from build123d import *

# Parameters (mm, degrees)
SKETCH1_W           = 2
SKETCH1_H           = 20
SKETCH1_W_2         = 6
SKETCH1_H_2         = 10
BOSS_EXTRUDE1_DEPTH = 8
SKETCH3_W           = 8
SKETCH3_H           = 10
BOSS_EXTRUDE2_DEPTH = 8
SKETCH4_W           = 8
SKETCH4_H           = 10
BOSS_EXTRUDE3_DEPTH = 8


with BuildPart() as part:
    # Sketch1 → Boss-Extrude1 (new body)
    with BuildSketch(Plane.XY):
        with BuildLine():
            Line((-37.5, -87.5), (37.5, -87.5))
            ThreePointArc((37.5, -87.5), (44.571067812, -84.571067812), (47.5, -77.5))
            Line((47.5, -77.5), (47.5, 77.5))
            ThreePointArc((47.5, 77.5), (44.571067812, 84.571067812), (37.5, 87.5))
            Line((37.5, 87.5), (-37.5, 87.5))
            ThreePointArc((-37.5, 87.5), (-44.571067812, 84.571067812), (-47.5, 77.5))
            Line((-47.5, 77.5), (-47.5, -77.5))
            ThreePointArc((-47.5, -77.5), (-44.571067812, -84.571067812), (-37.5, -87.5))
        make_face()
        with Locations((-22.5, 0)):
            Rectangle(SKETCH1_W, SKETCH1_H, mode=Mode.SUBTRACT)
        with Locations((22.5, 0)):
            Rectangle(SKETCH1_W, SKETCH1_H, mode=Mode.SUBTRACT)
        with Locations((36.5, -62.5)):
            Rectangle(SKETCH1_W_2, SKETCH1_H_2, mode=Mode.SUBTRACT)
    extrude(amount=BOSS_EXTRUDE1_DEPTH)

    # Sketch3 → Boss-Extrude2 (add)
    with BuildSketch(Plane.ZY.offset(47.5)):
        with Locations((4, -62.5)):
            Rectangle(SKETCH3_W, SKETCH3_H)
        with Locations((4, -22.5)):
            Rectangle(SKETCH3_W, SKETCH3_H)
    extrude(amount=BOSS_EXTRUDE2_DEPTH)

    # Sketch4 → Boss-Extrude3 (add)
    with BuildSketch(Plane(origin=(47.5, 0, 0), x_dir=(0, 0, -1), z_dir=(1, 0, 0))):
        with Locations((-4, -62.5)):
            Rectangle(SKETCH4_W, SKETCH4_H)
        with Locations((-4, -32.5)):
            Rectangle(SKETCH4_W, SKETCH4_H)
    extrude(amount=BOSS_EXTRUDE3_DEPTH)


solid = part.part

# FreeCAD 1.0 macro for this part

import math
import FreeCAD as App
import Part
import Sketcher

V = App.Vector


def add_polygon(sketch, points):
    """Adds a closed chain of lines whose ends are joined by coincident constraints."""
    first, n = sketch.GeometryCount, len(points)
    for a, b in zip(points, points[1:] + points[:1]):
        sketch.addGeometry(Part.LineSegment(App.Vector(*a, 0), App.Vector(*b, 0)), False)
    for i in range(n):
        sketch.addConstraint(Sketcher.Constraint("Coincident", first + i, 2, first + (i + 1) % n, 1))

doc = App.newDocument("Part")
params = doc.addObject("Spreadsheet::Sheet", "Params")
for row, (alias, value) in enumerate([
    ("sketch1_radius", "10 mm"),
    ("sketch1_width", "75 mm"),
    ("sketch1_width2", "6 mm"),
    ("sketch1_width3", "2 mm"),
    ("sketch1_height", "155 mm"),
    ("pad1_length", "8 mm"),
    ("sketch2_width", "10 mm"),
    ("sketch2_height", "8 mm"),
    ("pad2_length", "8 mm"),
    ("sketch3_width", "10 mm"),
    ("sketch3_height", "8 mm"),
    ("pad3_length", "8 mm"),
], start=1):
    params.set(f"A{row}", alias)
    params.set(f"B{row}", "=" + value)
    params.setAlias(f"B{row}", alias)

body = doc.addObject("PartDesign::Body", "Body")

# Sketch on XY plane
sketch1 = body.newObject("Sketcher::SketchObject", "Sketch")
sketch1.AttachmentSupport = (doc.getObject("XY_Plane"), [""])
sketch1.MapMode = "FlatFace"
sketch1.addGeometry(Part.LineSegment(V(-37.5, -87.5, 0), V(37.5, -87.5, 0)), False)  # 0
sketch1.addGeometry(Part.ArcOfCircle(Part.Circle(V(37.5, -77.5, 0), V(0, 0, 1), 10), math.radians(-90), math.radians(0)), False)  # 1
sketch1.addGeometry(Part.LineSegment(V(47.5, -77.5, 0), V(47.5, 77.5, 0)), False)  # 2
sketch1.addGeometry(Part.ArcOfCircle(Part.Circle(V(37.5, 77.5, 0), V(0, 0, 1), 10), math.radians(0), math.radians(90)), False)  # 3
sketch1.addGeometry(Part.LineSegment(V(37.5, 87.5, 0), V(-37.5, 87.5, 0)), False)  # 4
sketch1.addGeometry(Part.ArcOfCircle(Part.Circle(V(-37.5, 77.5, 0), V(0, 0, 1), 10), math.radians(90), math.radians(180)), False)  # 5
sketch1.addGeometry(Part.LineSegment(V(-47.5, 77.5, 0), V(-47.5, -77.5, 0)), False)  # 6
sketch1.addGeometry(Part.ArcOfCircle(Part.Circle(V(-37.5, -77.5, 0), V(0, 0, 1), 10), math.radians(180), math.radians(270)), False)  # 7
add_polygon(sketch1, [(39.5, -67.5), (33.5, -67.5), (33.5, -57.5), (39.5, -57.5)])  # lines 8-11
add_polygon(sketch1, [(-21.5, -10), (-23.5, -10), (-23.5, 10), (-21.5, 10)])  # lines 12-15
add_polygon(sketch1, [(23.5, -10), (21.5, -10), (21.5, 10), (23.5, 10)])  # lines 16-19
sketch1.addConstraint([
    Sketcher.Constraint("Tangent", 0, 2, 1, 1),
    Sketcher.Constraint("Tangent", 1, 2, 2, 1),
    Sketcher.Constraint("Tangent", 2, 2, 3, 1),
    Sketcher.Constraint("Tangent", 3, 2, 4, 1),
    Sketcher.Constraint("Tangent", 4, 2, 5, 1),
    Sketcher.Constraint("Tangent", 5, 2, 6, 1),
    Sketcher.Constraint("Tangent", 6, 2, 7, 1),
    Sketcher.Constraint("Tangent", 7, 2, 0, 1),
    Sketcher.Constraint("Horizontal", 0),
    Sketcher.Constraint("Vertical", 2),
    Sketcher.Constraint("Horizontal", 4),
    Sketcher.Constraint("Vertical", 6),
    Sketcher.Constraint("Horizontal", 8),
    Sketcher.Constraint("Vertical", 9),
    Sketcher.Constraint("Horizontal", 10),
    Sketcher.Constraint("Vertical", 11),
    Sketcher.Constraint("Horizontal", 12),
    Sketcher.Constraint("Vertical", 13),
    Sketcher.Constraint("Horizontal", 14),
    Sketcher.Constraint("Vertical", 15),
    Sketcher.Constraint("Horizontal", 16),
    Sketcher.Constraint("Vertical", 17),
    Sketcher.Constraint("Horizontal", 18),
    Sketcher.Constraint("Vertical", 19),
    Sketcher.Constraint("Equal", 1, 3),
    Sketcher.Constraint("Equal", 3, 5),
    Sketcher.Constraint("Equal", 5, 7),
    Sketcher.Constraint("Symmetric", 1, 3, 5, 3, -1, 1),
    Sketcher.Constraint("Symmetric", 14, 2, 16, 2, -1, 1),
    Sketcher.Constraint("Symmetric", 12, 2, 18, 2, -1, 1),
    Sketcher.Constraint("Horizontal", 15, 2, 16, 2),
    Sketcher.Constraint("Radius", 1, 10.0),
    Sketcher.Constraint("DistanceX", 0, 1, 0, 2, 75.0),
    Sketcher.Constraint("DistanceX", 8, 2, 8, 1, 6.0),
    Sketcher.Constraint("DistanceX", 12, 2, 12, 1, 2.0),
    Sketcher.Constraint("DistanceY", 2, 1, 2, 2, 155.0),
    Sketcher.Constraint("DistanceY", 9, 1, 9, 2, 10.0),
    Sketcher.Constraint("DistanceY", 13, 1, 13, 2, 20.0),
    Sketcher.Constraint("DistanceX", 8, 2, 1, 3, 4.0),
    Sketcher.Constraint("DistanceY", 1, 3, 8, 2, 10.0),
    Sketcher.Constraint("DistanceX", 7, 3, 12, 2, 14.0),
])
sketch1.setExpression("Constraints[43]", "Params.sketch1_radius")
sketch1.setExpression("Constraints[44]", "Params.sketch1_width")
sketch1.setExpression("Constraints[45]", "Params.sketch1_width2")
sketch1.setExpression("Constraints[46]", "Params.sketch1_width3")
sketch1.setExpression("Constraints[47]", "Params.sketch1_height")
pad1 = body.newObject("PartDesign::Pad", "Pad")
pad1.Profile = sketch1
pad1.setExpression("Length", "Params.pad1_length")

# Sketch on YZ plane
sketch2 = body.newObject("Sketcher::SketchObject", "Sketch001")
sketch2.AttachmentSupport = (doc.getObject("YZ_Plane"), [""])
sketch2.MapMode = "FlatFace"
sketch2.AttachmentOffset = App.Placement(V(0, 0, -47.5), App.Rotation())
add_polygon(sketch2, [(-58, 0), (-68, 0), (-68, 8), (-58, 8)])  # lines 0-3
add_polygon(sketch2, [(-18, 0), (-28, 0), (-28, 8), (-18, 8)])  # lines 4-7
sketch2.addConstraint([
    Sketcher.Constraint("Horizontal", 0),
    Sketcher.Constraint("Vertical", 1),
    Sketcher.Constraint("Horizontal", 2),
    Sketcher.Constraint("Vertical", 3),
    Sketcher.Constraint("Horizontal", 4),
    Sketcher.Constraint("Vertical", 5),
    Sketcher.Constraint("Horizontal", 6),
    Sketcher.Constraint("Vertical", 7),
    Sketcher.Constraint("PointOnObject", 0, 2, -1),
    Sketcher.Constraint("PointOnObject", 4, 2, -1),
    Sketcher.Constraint("Horizontal", 2, 2, 5, 2),
    Sketcher.Constraint("Equal", 2, 4),
    Sketcher.Constraint("DistanceX", 0, 2, 0, 1, 10.0),
    Sketcher.Constraint("DistanceY", 1, 1, 1, 2, 8.0),
    Sketcher.Constraint("DistanceX", 3, 2, 4, 2, 30.0),
    Sketcher.Constraint("DistanceX", 0, 2, -1, 1, 67.5),
])
sketch2.setExpression("Constraints[20]", "Params.sketch2_width")
sketch2.setExpression("Constraints[21]", "Params.sketch2_height")
pad2 = body.newObject("PartDesign::Pad", "Pad001")
pad2.Profile = sketch2
pad2.setExpression("Length", "Params.pad2_length")
pad2.Reversed = True

# Sketch on YZ plane
sketch3 = body.newObject("Sketcher::SketchObject", "Sketch002")
sketch3.AttachmentSupport = (doc.getObject("YZ_Plane"), [""])
sketch3.MapMode = "FlatFace"
sketch3.AttachmentOffset = App.Placement(V(0, 0, 47.5), App.Rotation())
add_polygon(sketch3, [(-58, 8), (-68, 8), (-68, 0), (-58, 0)])  # lines 0-3
add_polygon(sketch3, [(-28, 8), (-38, 8), (-38, 0), (-28, 0)])  # lines 4-7
sketch3.addConstraint([
    Sketcher.Constraint("Horizontal", 0),
    Sketcher.Constraint("Vertical", 1),
    Sketcher.Constraint("Horizontal", 2),
    Sketcher.Constraint("Vertical", 3),
    Sketcher.Constraint("Horizontal", 4),
    Sketcher.Constraint("Vertical", 5),
    Sketcher.Constraint("Horizontal", 6),
    Sketcher.Constraint("Vertical", 7),
    Sketcher.Constraint("PointOnObject", 1, 2, -1),
    Sketcher.Constraint("PointOnObject", 5, 2, -1),
    Sketcher.Constraint("Horizontal", 3, 2, 4, 2),
    Sketcher.Constraint("Equal", 2, 4),
    Sketcher.Constraint("DistanceX", 0, 2, 0, 1, 10.0),
    Sketcher.Constraint("DistanceY", 1, 2, 1, 1, 8.0),
    Sketcher.Constraint("DistanceX", 3, 2, 4, 2, 20.0),
    Sketcher.Constraint("DistanceX", 0, 2, -1, 1, 67.5),
])
sketch3.setExpression("Constraints[20]", "Params.sketch3_width")
sketch3.setExpression("Constraints[21]", "Params.sketch3_height")
pad3 = body.newObject("PartDesign::Pad", "Pad002")
pad3.Profile = sketch3
pad3.setExpression("Length", "Params.pad3_length")

doc.recompute()
